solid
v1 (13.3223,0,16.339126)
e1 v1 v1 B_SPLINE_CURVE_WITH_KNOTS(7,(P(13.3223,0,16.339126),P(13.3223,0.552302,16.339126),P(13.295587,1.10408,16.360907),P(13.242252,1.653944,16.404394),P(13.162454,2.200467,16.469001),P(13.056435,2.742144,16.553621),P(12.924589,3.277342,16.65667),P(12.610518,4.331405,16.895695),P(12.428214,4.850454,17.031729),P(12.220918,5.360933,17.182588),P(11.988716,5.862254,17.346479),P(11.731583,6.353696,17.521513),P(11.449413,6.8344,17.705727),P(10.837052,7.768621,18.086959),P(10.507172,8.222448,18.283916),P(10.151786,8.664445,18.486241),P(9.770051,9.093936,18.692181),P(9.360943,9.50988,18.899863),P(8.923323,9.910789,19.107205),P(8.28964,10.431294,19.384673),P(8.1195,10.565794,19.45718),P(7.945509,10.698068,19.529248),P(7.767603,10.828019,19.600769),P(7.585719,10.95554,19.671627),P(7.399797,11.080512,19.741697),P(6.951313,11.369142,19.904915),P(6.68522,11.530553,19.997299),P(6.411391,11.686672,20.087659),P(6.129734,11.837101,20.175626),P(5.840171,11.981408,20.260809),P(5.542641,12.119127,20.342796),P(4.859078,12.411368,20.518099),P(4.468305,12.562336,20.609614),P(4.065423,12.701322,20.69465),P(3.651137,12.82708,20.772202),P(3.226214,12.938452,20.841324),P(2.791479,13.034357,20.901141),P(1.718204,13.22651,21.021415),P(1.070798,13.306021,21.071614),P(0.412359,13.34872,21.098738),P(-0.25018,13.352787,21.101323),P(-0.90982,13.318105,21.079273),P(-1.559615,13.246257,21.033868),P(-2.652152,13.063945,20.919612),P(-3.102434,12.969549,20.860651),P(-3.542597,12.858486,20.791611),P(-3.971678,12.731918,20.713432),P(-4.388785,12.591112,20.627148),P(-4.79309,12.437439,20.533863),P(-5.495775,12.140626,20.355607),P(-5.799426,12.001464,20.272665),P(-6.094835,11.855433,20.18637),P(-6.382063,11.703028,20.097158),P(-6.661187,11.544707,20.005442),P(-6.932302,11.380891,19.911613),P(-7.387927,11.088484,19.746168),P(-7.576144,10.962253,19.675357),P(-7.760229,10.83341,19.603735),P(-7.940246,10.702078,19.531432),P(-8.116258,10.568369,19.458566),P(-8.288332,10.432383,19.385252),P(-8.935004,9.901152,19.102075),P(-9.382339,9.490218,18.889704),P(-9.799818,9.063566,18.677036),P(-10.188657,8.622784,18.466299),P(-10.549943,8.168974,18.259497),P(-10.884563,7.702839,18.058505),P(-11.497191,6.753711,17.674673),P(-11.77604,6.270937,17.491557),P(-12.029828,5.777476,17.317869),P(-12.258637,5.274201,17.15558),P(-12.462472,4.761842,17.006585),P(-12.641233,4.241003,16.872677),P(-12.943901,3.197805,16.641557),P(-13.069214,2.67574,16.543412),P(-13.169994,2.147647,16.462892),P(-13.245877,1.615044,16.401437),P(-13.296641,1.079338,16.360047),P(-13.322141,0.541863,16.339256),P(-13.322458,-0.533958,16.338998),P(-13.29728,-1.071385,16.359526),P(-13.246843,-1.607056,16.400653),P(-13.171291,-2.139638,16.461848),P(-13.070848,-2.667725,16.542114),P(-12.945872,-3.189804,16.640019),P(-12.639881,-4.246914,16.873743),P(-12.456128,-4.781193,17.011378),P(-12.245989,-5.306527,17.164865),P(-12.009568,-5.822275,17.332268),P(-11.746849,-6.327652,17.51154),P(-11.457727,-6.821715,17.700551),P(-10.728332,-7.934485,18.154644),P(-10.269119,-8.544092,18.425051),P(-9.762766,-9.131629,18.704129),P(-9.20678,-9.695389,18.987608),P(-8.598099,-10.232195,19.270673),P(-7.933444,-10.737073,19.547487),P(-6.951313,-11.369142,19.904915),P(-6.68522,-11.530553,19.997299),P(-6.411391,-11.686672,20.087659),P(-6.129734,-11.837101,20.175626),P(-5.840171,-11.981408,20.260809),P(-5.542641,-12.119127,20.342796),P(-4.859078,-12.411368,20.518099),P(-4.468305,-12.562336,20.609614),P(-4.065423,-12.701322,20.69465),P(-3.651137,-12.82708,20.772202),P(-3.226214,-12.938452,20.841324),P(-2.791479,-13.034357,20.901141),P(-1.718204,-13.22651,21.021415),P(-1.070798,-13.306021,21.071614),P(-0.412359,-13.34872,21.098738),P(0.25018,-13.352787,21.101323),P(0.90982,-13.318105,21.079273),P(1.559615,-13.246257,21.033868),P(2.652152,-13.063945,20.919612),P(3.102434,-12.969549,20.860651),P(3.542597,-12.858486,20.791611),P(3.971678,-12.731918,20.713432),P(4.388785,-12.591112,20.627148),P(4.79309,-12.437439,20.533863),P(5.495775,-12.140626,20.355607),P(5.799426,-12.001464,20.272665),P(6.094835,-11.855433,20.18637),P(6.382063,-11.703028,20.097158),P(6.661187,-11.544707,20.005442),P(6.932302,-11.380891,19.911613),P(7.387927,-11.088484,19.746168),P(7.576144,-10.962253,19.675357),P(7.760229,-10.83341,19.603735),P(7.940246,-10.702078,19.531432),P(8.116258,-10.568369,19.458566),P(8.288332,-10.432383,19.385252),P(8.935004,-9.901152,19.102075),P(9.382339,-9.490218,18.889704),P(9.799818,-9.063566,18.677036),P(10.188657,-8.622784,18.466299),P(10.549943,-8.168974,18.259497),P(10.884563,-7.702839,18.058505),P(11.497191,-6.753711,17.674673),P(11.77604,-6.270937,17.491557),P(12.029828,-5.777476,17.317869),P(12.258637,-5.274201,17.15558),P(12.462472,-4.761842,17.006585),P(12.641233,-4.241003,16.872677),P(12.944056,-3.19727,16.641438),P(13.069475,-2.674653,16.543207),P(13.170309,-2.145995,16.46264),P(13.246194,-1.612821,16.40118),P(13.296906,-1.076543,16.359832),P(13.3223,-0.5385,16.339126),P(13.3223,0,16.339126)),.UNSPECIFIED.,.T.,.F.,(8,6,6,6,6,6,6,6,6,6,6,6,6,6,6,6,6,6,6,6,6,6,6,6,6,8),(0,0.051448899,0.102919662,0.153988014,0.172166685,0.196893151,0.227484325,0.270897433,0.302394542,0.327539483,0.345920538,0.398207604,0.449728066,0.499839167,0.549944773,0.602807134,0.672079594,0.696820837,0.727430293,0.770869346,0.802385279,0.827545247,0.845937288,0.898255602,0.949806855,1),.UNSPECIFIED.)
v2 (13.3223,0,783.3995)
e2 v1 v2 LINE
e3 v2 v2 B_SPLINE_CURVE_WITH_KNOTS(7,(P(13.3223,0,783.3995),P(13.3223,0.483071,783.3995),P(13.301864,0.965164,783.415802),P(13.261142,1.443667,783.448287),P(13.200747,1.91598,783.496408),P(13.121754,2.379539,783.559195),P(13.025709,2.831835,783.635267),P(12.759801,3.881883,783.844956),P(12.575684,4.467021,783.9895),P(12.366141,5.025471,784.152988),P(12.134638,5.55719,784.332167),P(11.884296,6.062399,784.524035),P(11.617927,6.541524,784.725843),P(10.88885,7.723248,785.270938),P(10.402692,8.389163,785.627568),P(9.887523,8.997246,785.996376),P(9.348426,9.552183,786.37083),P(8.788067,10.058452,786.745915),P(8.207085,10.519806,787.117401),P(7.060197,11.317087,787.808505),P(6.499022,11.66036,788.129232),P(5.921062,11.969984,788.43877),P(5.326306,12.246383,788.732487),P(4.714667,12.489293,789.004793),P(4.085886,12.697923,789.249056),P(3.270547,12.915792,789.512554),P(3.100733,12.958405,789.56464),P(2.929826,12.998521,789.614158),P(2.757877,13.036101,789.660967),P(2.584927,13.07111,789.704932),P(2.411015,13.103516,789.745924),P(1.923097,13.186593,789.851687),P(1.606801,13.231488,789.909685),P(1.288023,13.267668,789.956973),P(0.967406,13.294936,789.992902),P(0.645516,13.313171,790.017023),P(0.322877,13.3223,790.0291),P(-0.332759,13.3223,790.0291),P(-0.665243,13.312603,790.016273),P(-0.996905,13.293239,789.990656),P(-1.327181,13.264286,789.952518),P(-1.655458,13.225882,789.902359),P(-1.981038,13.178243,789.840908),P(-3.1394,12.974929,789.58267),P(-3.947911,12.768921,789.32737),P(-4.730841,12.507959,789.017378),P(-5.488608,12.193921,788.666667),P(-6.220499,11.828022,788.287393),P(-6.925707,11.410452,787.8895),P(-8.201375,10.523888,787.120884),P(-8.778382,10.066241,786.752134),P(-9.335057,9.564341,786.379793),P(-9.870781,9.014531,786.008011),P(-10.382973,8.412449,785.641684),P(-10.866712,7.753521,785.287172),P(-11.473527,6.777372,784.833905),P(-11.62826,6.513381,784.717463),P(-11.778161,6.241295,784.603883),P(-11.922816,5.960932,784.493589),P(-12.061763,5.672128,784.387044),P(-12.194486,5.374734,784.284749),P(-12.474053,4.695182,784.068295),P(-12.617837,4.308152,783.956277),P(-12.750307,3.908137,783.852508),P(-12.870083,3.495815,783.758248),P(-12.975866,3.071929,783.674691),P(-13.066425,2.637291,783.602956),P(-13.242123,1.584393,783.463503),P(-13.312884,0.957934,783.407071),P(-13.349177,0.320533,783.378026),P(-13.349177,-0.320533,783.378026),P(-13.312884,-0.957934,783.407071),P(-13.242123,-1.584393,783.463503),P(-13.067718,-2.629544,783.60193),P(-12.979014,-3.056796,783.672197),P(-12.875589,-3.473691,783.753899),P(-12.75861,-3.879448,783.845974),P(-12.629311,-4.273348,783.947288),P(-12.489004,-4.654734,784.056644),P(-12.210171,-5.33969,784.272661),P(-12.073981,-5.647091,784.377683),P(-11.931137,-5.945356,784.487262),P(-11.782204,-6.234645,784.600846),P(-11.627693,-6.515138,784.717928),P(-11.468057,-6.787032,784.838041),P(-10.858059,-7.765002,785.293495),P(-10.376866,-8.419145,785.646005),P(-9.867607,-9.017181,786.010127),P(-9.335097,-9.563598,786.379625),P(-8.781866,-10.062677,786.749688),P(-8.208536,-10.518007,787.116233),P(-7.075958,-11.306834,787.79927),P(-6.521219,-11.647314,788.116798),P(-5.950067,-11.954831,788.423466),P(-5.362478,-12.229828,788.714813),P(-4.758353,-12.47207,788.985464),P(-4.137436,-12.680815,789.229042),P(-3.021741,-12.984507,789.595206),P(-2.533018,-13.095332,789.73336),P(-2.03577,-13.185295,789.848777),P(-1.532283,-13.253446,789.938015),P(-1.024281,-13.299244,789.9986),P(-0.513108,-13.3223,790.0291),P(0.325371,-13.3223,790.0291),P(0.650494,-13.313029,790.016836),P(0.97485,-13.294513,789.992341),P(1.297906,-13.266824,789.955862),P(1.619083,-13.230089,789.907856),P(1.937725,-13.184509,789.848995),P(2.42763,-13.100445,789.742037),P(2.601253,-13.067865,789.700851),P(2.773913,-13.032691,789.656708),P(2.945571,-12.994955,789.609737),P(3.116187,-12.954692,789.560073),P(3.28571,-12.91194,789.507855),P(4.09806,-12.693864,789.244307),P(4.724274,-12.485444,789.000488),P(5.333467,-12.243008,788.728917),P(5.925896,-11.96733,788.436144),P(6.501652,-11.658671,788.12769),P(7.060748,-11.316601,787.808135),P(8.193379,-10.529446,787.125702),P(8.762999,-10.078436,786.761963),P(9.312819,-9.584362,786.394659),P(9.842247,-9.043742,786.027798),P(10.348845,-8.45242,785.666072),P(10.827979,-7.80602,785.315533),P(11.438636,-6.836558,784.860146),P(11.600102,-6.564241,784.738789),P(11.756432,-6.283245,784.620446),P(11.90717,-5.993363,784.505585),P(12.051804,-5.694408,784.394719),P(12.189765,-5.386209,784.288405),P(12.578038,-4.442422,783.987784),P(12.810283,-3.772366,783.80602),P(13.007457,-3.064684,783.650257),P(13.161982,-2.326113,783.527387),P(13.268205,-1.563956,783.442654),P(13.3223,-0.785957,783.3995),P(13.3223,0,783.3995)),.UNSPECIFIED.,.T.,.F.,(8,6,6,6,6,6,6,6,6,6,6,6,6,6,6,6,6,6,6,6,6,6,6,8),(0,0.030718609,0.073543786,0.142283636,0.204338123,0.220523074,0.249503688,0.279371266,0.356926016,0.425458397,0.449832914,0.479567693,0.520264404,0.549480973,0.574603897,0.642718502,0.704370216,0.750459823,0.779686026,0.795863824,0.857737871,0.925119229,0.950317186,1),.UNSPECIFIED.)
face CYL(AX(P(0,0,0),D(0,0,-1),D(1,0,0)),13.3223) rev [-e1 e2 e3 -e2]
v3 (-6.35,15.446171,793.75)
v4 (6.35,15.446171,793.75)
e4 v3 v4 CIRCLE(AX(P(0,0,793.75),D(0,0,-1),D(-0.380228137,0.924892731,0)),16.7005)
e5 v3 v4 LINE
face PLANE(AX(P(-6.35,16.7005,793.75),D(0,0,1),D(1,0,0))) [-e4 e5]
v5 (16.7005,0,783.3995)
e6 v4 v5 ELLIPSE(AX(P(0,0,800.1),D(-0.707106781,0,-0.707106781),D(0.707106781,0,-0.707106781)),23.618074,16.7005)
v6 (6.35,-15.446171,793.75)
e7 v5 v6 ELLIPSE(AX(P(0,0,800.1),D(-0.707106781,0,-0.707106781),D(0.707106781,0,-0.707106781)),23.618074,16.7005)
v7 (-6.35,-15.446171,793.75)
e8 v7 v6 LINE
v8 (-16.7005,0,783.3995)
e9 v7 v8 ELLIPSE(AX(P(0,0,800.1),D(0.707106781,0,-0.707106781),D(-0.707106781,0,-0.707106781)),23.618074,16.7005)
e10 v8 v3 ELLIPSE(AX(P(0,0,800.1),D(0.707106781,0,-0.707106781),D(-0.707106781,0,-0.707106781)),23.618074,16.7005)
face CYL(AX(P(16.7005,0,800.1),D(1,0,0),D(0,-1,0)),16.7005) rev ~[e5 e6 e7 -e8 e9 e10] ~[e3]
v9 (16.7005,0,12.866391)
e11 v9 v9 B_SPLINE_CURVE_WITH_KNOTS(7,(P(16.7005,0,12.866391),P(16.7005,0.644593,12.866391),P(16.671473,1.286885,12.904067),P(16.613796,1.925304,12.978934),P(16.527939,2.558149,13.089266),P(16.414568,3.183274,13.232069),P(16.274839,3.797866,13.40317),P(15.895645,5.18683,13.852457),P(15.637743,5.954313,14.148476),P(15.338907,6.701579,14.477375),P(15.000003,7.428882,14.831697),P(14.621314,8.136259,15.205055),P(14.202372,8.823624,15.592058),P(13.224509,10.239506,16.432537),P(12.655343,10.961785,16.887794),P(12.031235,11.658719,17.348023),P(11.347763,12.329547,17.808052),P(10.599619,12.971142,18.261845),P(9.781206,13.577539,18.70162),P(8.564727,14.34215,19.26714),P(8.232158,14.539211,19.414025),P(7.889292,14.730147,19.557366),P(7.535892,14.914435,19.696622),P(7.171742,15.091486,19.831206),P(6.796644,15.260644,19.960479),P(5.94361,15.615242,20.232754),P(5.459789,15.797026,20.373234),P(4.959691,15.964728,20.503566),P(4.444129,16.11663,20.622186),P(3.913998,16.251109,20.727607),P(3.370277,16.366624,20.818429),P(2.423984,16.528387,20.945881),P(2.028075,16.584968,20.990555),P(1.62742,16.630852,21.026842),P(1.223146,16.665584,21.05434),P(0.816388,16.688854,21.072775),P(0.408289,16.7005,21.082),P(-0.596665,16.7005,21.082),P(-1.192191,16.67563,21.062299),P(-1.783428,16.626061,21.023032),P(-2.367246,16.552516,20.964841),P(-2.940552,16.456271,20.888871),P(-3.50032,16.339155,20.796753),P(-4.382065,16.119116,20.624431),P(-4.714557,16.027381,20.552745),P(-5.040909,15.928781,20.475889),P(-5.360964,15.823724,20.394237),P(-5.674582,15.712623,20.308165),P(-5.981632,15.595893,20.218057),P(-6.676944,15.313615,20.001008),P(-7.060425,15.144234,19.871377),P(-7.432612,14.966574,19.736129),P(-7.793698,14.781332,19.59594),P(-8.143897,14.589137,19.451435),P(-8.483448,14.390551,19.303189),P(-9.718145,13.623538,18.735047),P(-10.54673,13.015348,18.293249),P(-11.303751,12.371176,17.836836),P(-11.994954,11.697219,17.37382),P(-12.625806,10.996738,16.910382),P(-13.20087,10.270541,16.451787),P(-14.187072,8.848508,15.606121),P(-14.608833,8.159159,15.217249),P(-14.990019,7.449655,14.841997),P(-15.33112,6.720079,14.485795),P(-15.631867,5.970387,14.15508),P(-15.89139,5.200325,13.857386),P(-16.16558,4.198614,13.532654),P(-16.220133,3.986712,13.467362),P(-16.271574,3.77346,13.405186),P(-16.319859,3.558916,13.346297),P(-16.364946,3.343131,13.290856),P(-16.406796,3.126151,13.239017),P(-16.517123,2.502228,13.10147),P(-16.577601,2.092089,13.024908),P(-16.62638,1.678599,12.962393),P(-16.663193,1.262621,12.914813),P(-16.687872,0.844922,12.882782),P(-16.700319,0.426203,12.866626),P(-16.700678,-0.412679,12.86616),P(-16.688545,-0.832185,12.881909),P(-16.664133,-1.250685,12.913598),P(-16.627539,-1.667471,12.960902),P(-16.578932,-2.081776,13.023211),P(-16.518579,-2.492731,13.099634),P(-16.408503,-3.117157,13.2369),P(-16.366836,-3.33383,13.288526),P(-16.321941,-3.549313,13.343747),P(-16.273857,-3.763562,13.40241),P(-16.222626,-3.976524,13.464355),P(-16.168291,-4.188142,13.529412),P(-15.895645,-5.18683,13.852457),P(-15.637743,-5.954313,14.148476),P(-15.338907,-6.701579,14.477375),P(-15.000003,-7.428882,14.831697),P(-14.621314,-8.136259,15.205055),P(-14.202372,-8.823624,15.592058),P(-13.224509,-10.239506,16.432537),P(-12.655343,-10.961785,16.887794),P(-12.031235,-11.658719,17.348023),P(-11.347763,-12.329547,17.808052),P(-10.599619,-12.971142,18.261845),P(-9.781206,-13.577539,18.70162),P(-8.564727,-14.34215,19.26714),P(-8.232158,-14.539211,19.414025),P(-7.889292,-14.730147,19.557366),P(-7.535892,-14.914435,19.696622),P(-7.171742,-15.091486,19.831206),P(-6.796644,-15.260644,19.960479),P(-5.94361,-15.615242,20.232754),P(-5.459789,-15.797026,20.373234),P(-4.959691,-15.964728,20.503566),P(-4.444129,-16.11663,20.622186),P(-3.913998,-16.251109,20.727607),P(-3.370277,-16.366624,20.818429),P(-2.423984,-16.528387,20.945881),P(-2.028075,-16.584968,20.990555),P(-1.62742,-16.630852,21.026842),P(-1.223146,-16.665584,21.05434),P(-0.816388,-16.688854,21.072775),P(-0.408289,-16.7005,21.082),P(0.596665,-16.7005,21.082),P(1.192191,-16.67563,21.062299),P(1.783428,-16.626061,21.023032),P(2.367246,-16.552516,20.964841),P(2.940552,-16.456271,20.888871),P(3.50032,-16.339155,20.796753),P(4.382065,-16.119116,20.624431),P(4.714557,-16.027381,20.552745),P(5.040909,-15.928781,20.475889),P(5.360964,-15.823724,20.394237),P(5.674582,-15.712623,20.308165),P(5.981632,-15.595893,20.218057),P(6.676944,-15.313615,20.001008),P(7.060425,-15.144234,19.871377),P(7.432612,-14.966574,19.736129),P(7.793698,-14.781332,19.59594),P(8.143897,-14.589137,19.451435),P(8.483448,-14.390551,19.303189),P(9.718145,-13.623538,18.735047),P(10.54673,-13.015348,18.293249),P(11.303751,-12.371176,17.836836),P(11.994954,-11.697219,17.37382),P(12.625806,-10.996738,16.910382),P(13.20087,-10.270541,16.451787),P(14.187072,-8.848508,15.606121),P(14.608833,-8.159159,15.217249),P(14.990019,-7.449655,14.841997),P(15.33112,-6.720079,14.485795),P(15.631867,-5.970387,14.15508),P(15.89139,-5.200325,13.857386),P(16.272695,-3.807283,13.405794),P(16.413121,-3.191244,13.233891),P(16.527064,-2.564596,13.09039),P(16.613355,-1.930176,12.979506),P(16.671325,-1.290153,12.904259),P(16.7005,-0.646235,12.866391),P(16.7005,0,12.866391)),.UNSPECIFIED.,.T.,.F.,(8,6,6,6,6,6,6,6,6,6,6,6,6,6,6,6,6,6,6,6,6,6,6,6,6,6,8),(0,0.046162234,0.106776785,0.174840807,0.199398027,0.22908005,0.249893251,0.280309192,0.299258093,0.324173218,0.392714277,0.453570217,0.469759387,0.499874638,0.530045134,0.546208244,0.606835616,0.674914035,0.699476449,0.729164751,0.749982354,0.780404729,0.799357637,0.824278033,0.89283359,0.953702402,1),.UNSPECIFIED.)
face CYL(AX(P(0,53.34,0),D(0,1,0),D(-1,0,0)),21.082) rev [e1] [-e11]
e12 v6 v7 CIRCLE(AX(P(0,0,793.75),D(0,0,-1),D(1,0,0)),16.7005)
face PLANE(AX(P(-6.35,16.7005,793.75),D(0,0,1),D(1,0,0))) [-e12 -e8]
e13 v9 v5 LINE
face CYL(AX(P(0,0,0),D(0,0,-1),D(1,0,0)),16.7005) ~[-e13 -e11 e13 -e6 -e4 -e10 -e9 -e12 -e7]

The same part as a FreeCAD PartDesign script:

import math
import FreeCAD as App
import Part
import Sketcher
Q = App.Units.Quantity

doc = App.newDocument("Part")
body = doc.addObject("PartDesign::Body", "Body")

# Sketch on XY plane
sketch1 = doc.addObject("Sketcher::SketchObject", "Sketch")
body.addObject(sketch1)
sketch1.AttachmentSupport = (doc.XY_Plane, [""])
sketch1.MapMode = "FlatFace"
sketch1.addGeometry(Part.Circle(App.Vector(0, 0, 0), App.Vector(0, 0, 1), 17), False)
sketch1.addGeometry(Part.Circle(App.Vector(0, 0, 0), App.Vector(0, 0, 1), 13), False)
sketch1.addConstraint(Sketcher.Constraint("Coincident", 0, 3, -1, 1))
sketch1.addConstraint(Sketcher.Constraint("Coincident", 1, 3, -1, 1))
sketch1.addConstraint(Sketcher.Constraint("Diameter", 0, Q("1.315 in")))
sketch1.addConstraint(Sketcher.Constraint("Diameter", 1, Q("1.049 in")))
pad1 = doc.addObject("PartDesign::Pad", "Pad")
body.addObject(pad1)
pad1.Profile = sketch1
pad1.Length = Q("31.5 in")

# Sketch on XZ plane
sketch2 = doc.addObject("Sketcher::SketchObject", "Sketch001")
body.addObject(sketch2)
sketch2.AttachmentSupport = (doc.XZ_Plane, [""])
sketch2.MapMode = "FlatFace"
sketch2.AttachmentOffset = App.Placement(App.Vector(0, 0, -2.1 * 25.4), App.Rotation())
sketch2.addGeometry(Part.Circle(App.Vector(0, 0, 0), App.Vector(0, 0, 1), 21), False)
sketch2.addConstraint(Sketcher.Constraint("Coincident", 0, 3, -1, 1))
sketch2.addConstraint(Sketcher.Constraint("Diameter", 0, Q("1.66 in")))
pocket1 = doc.addObject("PartDesign::Pocket", "Pocket")
body.addObject(pocket1)
pocket1.Profile = sketch2
pocket1.Length = Q("3 in")
pocket1.Reversed = True

# Sketch on YZ plane
sketch3 = doc.addObject("Sketcher::SketchObject", "Sketch002")
body.addObject(sketch3)
sketch3.AttachmentSupport = (doc.YZ_Plane, [""])
sketch3.MapMode = "FlatFace"
sketch3.AttachmentOffset = App.Placement(App.Vector(0, 0, 0.6575 * 25.4), App.Rotation())
sketch3.addGeometry(Part.LineSegment(App.Vector(17, 800, 0), App.Vector(-17, 800, 0)), False)
sketch3.addGeometry(Part.ArcOfCircle(Part.Circle(App.Vector(0, 800, 0), App.Vector(0, 0, 1), 17), math.radians(180), math.radians(360)), False)
sketch3.addConstraint(Sketcher.Constraint("Coincident", 0, 1, 1, 2))
sketch3.addConstraint(Sketcher.Constraint("Coincident", 1, 1, 0, 2))
sketch3.addConstraint(Sketcher.Constraint("Horizontal", 0))
sketch3.addConstraint(Sketcher.Constraint("PointOnObject", 1, 3, -2))
sketch3.addConstraint(Sketcher.Constraint("Horizontal", 1, 3, 0, 1))
sketch3.addConstraint(Sketcher.Constraint("DistanceY", -1, 1, 1, 3, Q("31.5 in")))
sketch3.addConstraint(Sketcher.Constraint("Radius", 1, Q("0.6575 in")))
pocket2 = doc.addObject("PartDesign::Pocket", "Pocket001")
body.addObject(pocket2)
pocket2.Profile = sketch3
pocket2.Type = "ThroughAll"

# Sketch on XZ plane
sketch4 = doc.addObject("Sketcher::SketchObject", "Sketch003")
body.addObject(sketch4)
sketch4.AttachmentSupport = (doc.XZ_Plane, [""])
sketch4.MapMode = "FlatFace"
sketch4.AttachmentOffset = App.Placement(App.Vector(0, 0, -0.6575 * 25.4), App.Rotation())
sketch4.addGeometry(Part.LineSegment(App.Vector(-6, 794, 0), App.Vector(0, 800, 0)), False)
sketch4.addGeometry(Part.LineSegment(App.Vector(0, 800, 0), App.Vector(6, 794, 0)), False)
sketch4.addGeometry(Part.LineSegment(App.Vector(6, 794, 0), App.Vector(-6, 794, 0)), False)
sketch4.addConstraint(Sketcher.Constraint("Coincident", 0, 2, 1, 1))
sketch4.addConstraint(Sketcher.Constraint("Coincident", 1, 2, 2, 1))
sketch4.addConstraint(Sketcher.Constraint("Coincident", 2, 2, 0, 1))
sketch4.addConstraint(Sketcher.Constraint("Horizontal", 2))
sketch4.addConstraint(Sketcher.Constraint("PointOnObject", 0, 2, -2))
sketch4.addConstraint(Sketcher.Constraint("Perpendicular", 0, 1))
sketch4.addConstraint(Sketcher.Constraint("Equal", 0, 1))
sketch4.addConstraint(Sketcher.Constraint("DistanceX", -1, 1, 1, 2, Q("0.25 in")))
sketch4.addConstraint(Sketcher.Constraint("DistanceY", -1, 1, 0, 2, Q("31.5 in")))
pocket3 = doc.addObject("PartDesign::Pocket", "Pocket002")
body.addObject(pocket3)
pocket3.Profile = sketch4
pocket3.Type = "ThroughAll"
pocket3.Reversed = True

doc.recompute()
